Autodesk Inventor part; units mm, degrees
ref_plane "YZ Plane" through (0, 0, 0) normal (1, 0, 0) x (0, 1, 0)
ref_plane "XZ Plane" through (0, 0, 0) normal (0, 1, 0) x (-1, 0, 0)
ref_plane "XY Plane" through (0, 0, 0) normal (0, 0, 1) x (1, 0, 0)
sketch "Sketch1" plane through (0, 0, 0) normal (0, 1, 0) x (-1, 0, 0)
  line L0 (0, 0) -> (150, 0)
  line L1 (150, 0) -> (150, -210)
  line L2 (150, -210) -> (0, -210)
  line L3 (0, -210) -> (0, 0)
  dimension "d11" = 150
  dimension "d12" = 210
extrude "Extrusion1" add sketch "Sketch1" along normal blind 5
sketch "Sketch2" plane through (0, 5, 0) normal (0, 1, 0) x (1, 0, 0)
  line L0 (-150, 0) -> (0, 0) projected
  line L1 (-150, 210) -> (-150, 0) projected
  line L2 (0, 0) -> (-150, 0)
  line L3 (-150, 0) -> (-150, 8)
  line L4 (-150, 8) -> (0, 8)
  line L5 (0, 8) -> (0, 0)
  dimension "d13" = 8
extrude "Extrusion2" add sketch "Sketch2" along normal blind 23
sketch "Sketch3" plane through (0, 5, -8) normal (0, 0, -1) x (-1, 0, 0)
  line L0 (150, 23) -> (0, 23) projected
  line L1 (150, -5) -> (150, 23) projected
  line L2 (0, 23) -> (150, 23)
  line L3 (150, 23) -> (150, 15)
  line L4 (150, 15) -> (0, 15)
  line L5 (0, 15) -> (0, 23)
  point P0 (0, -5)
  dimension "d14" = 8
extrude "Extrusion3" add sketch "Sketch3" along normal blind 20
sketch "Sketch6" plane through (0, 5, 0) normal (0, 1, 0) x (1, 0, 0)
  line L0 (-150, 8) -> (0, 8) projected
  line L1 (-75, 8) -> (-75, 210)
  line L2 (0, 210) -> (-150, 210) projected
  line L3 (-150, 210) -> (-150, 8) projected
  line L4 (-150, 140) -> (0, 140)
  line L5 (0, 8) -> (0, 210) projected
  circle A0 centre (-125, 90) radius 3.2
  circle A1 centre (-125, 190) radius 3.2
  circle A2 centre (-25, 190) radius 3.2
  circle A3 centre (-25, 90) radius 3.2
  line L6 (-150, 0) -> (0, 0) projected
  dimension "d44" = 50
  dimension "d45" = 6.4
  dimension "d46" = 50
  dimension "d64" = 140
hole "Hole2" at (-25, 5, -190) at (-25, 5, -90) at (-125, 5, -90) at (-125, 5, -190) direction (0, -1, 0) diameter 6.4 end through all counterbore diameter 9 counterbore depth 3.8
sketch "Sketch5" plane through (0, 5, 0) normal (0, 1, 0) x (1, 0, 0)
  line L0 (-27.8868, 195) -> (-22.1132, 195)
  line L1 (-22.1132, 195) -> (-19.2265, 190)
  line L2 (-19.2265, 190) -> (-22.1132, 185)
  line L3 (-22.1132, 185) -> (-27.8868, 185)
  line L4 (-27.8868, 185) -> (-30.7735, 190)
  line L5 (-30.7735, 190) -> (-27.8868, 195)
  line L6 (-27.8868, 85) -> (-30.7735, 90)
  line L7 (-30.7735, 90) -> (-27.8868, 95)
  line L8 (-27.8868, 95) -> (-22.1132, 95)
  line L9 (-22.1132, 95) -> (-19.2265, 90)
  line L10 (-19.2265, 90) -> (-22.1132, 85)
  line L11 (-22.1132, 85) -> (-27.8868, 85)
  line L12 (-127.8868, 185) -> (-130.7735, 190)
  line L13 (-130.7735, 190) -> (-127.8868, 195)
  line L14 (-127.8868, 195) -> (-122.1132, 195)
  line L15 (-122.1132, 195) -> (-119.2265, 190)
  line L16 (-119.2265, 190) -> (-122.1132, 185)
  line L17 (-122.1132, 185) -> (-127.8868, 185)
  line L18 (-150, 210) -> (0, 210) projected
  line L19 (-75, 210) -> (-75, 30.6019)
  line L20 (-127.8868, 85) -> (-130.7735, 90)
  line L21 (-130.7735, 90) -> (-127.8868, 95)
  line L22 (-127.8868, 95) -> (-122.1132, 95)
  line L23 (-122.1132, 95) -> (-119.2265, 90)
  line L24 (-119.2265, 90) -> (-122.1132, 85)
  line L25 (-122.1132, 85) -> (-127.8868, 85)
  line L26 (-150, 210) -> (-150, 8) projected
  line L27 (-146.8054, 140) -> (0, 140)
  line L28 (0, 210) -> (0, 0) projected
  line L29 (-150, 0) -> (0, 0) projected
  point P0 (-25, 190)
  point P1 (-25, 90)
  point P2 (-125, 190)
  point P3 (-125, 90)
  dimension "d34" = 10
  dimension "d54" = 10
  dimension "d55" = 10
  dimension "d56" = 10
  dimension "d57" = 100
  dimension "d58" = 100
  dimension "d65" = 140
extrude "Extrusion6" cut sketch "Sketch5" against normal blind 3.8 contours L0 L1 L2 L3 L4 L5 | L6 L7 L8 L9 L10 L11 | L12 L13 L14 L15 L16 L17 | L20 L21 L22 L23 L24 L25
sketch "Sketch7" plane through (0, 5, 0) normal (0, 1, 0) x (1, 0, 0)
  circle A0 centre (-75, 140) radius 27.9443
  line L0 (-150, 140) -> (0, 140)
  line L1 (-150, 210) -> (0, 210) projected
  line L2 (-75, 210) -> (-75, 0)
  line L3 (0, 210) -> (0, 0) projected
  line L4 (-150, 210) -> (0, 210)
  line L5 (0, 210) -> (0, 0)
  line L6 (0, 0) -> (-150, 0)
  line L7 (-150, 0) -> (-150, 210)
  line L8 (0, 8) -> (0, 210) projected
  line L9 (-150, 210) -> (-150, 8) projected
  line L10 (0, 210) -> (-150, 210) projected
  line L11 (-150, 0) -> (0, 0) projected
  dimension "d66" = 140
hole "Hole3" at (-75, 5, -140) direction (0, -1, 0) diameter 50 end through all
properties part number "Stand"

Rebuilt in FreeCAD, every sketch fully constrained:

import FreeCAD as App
import Part
import Sketcher

V = App.Vector
Q = App.Units.Quantity


def add_polygon(sketch, points):
    """Adds a closed chain of lines whose ends are joined by coincident constraints."""
    first, n = sketch.GeometryCount, len(points)
    for a, b in zip(points, points[1:] + points[:1]):
        sketch.addGeometry(Part.LineSegment(App.Vector(*a, 0), App.Vector(*b, 0)), False)
    for i in range(n):
        sketch.addConstraint(Sketcher.Constraint("Coincident", first + i, 2, first + (i + 1) % n, 1))

doc = App.newDocument("Part")
body = doc.addObject("PartDesign::Body", "Body")

# Sketch on XZ plane
sketch1 = body.newObject("Sketcher::SketchObject", "Sketch")
sketch1.AttachmentSupport = (doc.getObject("XZ_Plane"), [""])
sketch1.MapMode = "FlatFace"
add_polygon(sketch1, [(-150, 0), (0, 0), (0, -210), (-150, -210)])  # lines 0-3
sketch1.addConstraint([
    Sketcher.Constraint("Horizontal", 0),
    Sketcher.Constraint("Vertical", 1),
    Sketcher.Constraint("Horizontal", 2),
    Sketcher.Constraint("Vertical", 3),
    Sketcher.Constraint("Coincident", 0, 2, -1, 1),
    Sketcher.Constraint("DistanceX", 0, 1, 0, 2, 150.0),
    Sketcher.Constraint("DistanceY", 1, 2, 1, 1, 210.0),
])
pad1 = body.newObject("PartDesign::Pad", "Pad")
pad1.Profile = sketch1
pad1.Length = 5
pad1.Reversed = True

# Sketch on XZ plane
sketch2 = body.newObject("Sketcher::SketchObject", "Sketch001")
sketch2.AttachmentSupport = (doc.getObject("XZ_Plane"), [""])
sketch2.MapMode = "FlatFace"
sketch2.AttachmentOffset = App.Placement(V(0, 0, -5), App.Rotation())
add_polygon(sketch2, [(-150, -8), (-150, 0), (0, 0), (0, -8)])  # lines 0-3
sketch2.addConstraint([
    Sketcher.Constraint("Vertical", 0),
    Sketcher.Constraint("Horizontal", 1),
    Sketcher.Constraint("Vertical", 2),
    Sketcher.Constraint("Horizontal", 3),
    Sketcher.Constraint("Coincident", 1, 2, -1, 1),
    Sketcher.Constraint("DistanceY", 0, 1, 0, 2, 8.0),
    Sketcher.Constraint("DistanceX", 1, 1, 1, 2, 150.0),
])
pad2 = body.newObject("PartDesign::Pad", "Pad001")
pad2.Profile = sketch2
pad2.Length = 23
pad2.Reversed = True

# Sketch on XY plane
sketch3 = body.newObject("Sketcher::SketchObject", "Sketch002")
sketch3.AttachmentSupport = (doc.getObject("XY_Plane"), [""])
sketch3.MapMode = "FlatFace"
sketch3.AttachmentOffset = App.Placement(V(0, 0, -8), App.Rotation())
add_polygon(sketch3, [(-150, 20), (-150, 28), (0, 28), (0, 20)])  # lines 0-3
sketch3.addConstraint([
    Sketcher.Constraint("Vertical", 0),
    Sketcher.Constraint("Horizontal", 1),
    Sketcher.Constraint("Vertical", 2),
    Sketcher.Constraint("Horizontal", 3),
    Sketcher.Constraint("PointOnObject", 1, 2, -2),
    Sketcher.Constraint("DistanceY", 0, 1, 0, 2, 8.0),
    Sketcher.Constraint("DistanceX", 1, 1, 1, 2, 150.0),
    Sketcher.Constraint("DistanceY", -1, 1, 0, 2, 28.0),
])
pad3 = body.newObject("PartDesign::Pad", "Pad002")
pad3.Profile = sketch3
pad3.Length = 20
pad3.Reversed = True

# Sketch on XZ plane
sketch4 = body.newObject("Sketcher::SketchObject", "Sketch003")
sketch4.AttachmentSupport = (doc.getObject("XZ_Plane"), [""])
sketch4.MapMode = "FlatFace"
sketch4.AttachmentOffset = App.Placement(V(0, 0, -5), App.Rotation())
sketch4.addGeometry([
    Part.Circle(V(-25, -190, 0), V(0, 0, 1), 3.2),
    Part.Circle(V(-25, -90, 0), V(0, 0, 1), 3.2),
    Part.Circle(V(-125, -90, 0), V(0, 0, 1), 3.2),
    Part.Circle(V(-125, -190, 0), V(0, 0, 1), 3.2),
], False)
sketch4.addConstraint([
    Sketcher.Constraint("Equal", 0, 1),
    Sketcher.Constraint("Equal", 1, 2),
    Sketcher.Constraint("Equal", 2, 3),
    Sketcher.Constraint("Horizontal", 1, 3, 2, 3),
    Sketcher.Constraint("Horizontal", 0, 3, 3, 3),
    Sketcher.Constraint("Vertical", 0, 3, 1, 3),
    Sketcher.Constraint("Vertical", 2, 3, 3, 3),
    Sketcher.Constraint("Diameter", 0, 6.4),
    Sketcher.Constraint("DistanceX", 0, 3, -1, 1, 25.0),
    Sketcher.Constraint("DistanceY", 0, 3, -1, 1, 190.0),
    Sketcher.Constraint("DistanceY", 1, 3, -1, 1, 90.0),
    Sketcher.Constraint("DistanceX", 2, 3, -1, 1, 125.0),
])
doc.recompute()
hole = body.newObject("PartDesign::Hole", "Hole")
hole.Profile = sketch4
hole.ThreadType = "None"
hole.Diameter = 6.4
hole.DepthType = "ThroughAll"
hole.HoleCutType = "Counterbore"
hole.HoleCutDiameter = 9
hole.HoleCutDepth = 3.8
hole.Reversed = True

# Sketch on XZ plane
sketch5 = body.newObject("Sketcher::SketchObject", "Sketch004")
sketch5.AttachmentSupport = (doc.getObject("XZ_Plane"), [""])
sketch5.MapMode = "FlatFace"
sketch5.AttachmentOffset = App.Placement(V(0, 0, -5), App.Rotation())
add_polygon(sketch5, [(-22, -195), (-28, -195), (-31, -190), (-28, -185), (-22, -185), (-19, -190)])  # lines 0-5
add_polygon(sketch5, [(-31, -90), (-28, -85), (-22, -85), (-19, -90), (-22, -95), (-28, -95)])  # lines 6-11
add_polygon(sketch5, [(-131, -190), (-128, -185), (-122, -185), (-119, -190), (-122, -195), (-128, -195)])  # lines 12-17
add_polygon(sketch5, [(-131, -90), (-128, -85), (-122, -85), (-119, -90), (-122, -95), (-128, -95)])  # lines 18-23
sketch5.addConstraint([
    Sketcher.Constraint("Horizontal", 0),
    Sketcher.Constraint("Horizontal", 3),
    Sketcher.Constraint("Horizontal", 7),
    Sketcher.Constraint("Horizontal", 10),
    Sketcher.Constraint("Horizontal", 13),
    Sketcher.Constraint("Horizontal", 16),
    Sketcher.Constraint("Horizontal", 19),
    Sketcher.Constraint("Horizontal", 22),
    Sketcher.Constraint("Parallel", 1, 4),
    Sketcher.Constraint("Parallel", 2, 5),
    Sketcher.Constraint("Parallel", 5, 6),
    Sketcher.Constraint("Parallel", 4, 8),
    Sketcher.Constraint("Parallel", 6, 9),
    Sketcher.Constraint("Parallel", 8, 11),
    Sketcher.Constraint("Parallel", 9, 12),
    Sketcher.Constraint("Parallel", 11, 14),
    Sketcher.Constraint("Parallel", 12, 15),
    Sketcher.Constraint("Parallel", 14, 17),
    Sketcher.Constraint("Parallel", 15, 18),
    Sketcher.Constraint("Parallel", 17, 20),
    Sketcher.Constraint("Parallel", 18, 21),
    Sketcher.Constraint("Parallel", 20, 23),
    Sketcher.Constraint("Horizontal", 1, 2, 4, 2),
    Sketcher.Constraint("Horizontal", 8, 2, 11, 2),
    Sketcher.Constraint("Horizontal", 3, 2, 12, 2),
    Sketcher.Constraint("Horizontal", 4, 2, 14, 2),
    Sketcher.Constraint("Horizontal", 5, 2, 15, 2),
    Sketcher.Constraint("Horizontal", 14, 2, 17, 2),
    Sketcher.Constraint("Horizontal", 7, 2, 18, 2),
    Sketcher.Constraint("Horizontal", 11, 2, 20, 2),
    Sketcher.Constraint("Horizontal", 10, 2, 21, 2),
    Sketcher.Constraint("Horizontal", 20, 2, 23, 2),
    Sketcher.Constraint("Vertical", 0, 2, 2, 2),
    Sketcher.Constraint("Vertical", 3, 2, 5, 2),
    Sketcher.Constraint("Vertical", 2, 2, 6, 2),
    Sketcher.Constraint("Vertical", 5, 2, 7, 2),
    Sketcher.Constraint("Vertical", 4, 2, 8, 2),
    Sketcher.Constraint("Vertical", 7, 2, 9, 2),
    Sketcher.Constraint("Vertical", 16, 2, 18, 2),
    Sketcher.Constraint("Vertical", 15, 2, 19, 2),
    Sketcher.Constraint("Equal", 10, 13),
    Sketcher.Constraint("DistanceY", 0, 2, 2, 2, 10.0),
    Sketcher.Constraint("DistanceY", 2, 2, 6, 2, 100.0),
    Sketcher.Constraint("DistanceX", 12, 2, 2, 2, 100.0),
    Sketcher.Constraint("Angle", 1, Q("119.9996 deg")),
    Sketcher.Constraint("DistanceY", 0, 2, -1, 1, 195.0),
    Sketcher.Constraint("DistanceX", 0, 2, 0, 1, 5.7736),
    Sketcher.Constraint("DistanceX", 0, 2, -1, 1, 27.8868),
])
pocket1 = body.newObject("PartDesign::Pocket", "Pocket")
pocket1.Profile = sketch5
pocket1.Length = 3.8
pocket1.Reversed = True

# Sketch on XZ plane
sketch6 = body.newObject("Sketcher::SketchObject", "Sketch005")
sketch6.AttachmentSupport = (doc.getObject("XZ_Plane"), [""])
sketch6.MapMode = "FlatFace"
sketch6.AttachmentOffset = App.Placement(V(0, 0, -5), App.Rotation())
sketch6.addGeometry(Part.Circle(V(-75, -140, 0), V(0, 0, 1), 25), False)
sketch6.addConstraint([
    Sketcher.Constraint("Diameter", 0, 50.0),
    Sketcher.Constraint("DistanceX", 0, 3, -1, 1, 75.0),
    Sketcher.Constraint("DistanceY", 0, 3, -1, 1, 140.0),
])
doc.recompute()
hole2 = body.newObject("PartDesign::Hole", "Hole001")
hole2.Profile = sketch6
hole2.ThreadType = "None"
hole2.Diameter = 50
hole2.DepthType = "ThroughAll"
hole2.Reversed = True

doc.recompute()
